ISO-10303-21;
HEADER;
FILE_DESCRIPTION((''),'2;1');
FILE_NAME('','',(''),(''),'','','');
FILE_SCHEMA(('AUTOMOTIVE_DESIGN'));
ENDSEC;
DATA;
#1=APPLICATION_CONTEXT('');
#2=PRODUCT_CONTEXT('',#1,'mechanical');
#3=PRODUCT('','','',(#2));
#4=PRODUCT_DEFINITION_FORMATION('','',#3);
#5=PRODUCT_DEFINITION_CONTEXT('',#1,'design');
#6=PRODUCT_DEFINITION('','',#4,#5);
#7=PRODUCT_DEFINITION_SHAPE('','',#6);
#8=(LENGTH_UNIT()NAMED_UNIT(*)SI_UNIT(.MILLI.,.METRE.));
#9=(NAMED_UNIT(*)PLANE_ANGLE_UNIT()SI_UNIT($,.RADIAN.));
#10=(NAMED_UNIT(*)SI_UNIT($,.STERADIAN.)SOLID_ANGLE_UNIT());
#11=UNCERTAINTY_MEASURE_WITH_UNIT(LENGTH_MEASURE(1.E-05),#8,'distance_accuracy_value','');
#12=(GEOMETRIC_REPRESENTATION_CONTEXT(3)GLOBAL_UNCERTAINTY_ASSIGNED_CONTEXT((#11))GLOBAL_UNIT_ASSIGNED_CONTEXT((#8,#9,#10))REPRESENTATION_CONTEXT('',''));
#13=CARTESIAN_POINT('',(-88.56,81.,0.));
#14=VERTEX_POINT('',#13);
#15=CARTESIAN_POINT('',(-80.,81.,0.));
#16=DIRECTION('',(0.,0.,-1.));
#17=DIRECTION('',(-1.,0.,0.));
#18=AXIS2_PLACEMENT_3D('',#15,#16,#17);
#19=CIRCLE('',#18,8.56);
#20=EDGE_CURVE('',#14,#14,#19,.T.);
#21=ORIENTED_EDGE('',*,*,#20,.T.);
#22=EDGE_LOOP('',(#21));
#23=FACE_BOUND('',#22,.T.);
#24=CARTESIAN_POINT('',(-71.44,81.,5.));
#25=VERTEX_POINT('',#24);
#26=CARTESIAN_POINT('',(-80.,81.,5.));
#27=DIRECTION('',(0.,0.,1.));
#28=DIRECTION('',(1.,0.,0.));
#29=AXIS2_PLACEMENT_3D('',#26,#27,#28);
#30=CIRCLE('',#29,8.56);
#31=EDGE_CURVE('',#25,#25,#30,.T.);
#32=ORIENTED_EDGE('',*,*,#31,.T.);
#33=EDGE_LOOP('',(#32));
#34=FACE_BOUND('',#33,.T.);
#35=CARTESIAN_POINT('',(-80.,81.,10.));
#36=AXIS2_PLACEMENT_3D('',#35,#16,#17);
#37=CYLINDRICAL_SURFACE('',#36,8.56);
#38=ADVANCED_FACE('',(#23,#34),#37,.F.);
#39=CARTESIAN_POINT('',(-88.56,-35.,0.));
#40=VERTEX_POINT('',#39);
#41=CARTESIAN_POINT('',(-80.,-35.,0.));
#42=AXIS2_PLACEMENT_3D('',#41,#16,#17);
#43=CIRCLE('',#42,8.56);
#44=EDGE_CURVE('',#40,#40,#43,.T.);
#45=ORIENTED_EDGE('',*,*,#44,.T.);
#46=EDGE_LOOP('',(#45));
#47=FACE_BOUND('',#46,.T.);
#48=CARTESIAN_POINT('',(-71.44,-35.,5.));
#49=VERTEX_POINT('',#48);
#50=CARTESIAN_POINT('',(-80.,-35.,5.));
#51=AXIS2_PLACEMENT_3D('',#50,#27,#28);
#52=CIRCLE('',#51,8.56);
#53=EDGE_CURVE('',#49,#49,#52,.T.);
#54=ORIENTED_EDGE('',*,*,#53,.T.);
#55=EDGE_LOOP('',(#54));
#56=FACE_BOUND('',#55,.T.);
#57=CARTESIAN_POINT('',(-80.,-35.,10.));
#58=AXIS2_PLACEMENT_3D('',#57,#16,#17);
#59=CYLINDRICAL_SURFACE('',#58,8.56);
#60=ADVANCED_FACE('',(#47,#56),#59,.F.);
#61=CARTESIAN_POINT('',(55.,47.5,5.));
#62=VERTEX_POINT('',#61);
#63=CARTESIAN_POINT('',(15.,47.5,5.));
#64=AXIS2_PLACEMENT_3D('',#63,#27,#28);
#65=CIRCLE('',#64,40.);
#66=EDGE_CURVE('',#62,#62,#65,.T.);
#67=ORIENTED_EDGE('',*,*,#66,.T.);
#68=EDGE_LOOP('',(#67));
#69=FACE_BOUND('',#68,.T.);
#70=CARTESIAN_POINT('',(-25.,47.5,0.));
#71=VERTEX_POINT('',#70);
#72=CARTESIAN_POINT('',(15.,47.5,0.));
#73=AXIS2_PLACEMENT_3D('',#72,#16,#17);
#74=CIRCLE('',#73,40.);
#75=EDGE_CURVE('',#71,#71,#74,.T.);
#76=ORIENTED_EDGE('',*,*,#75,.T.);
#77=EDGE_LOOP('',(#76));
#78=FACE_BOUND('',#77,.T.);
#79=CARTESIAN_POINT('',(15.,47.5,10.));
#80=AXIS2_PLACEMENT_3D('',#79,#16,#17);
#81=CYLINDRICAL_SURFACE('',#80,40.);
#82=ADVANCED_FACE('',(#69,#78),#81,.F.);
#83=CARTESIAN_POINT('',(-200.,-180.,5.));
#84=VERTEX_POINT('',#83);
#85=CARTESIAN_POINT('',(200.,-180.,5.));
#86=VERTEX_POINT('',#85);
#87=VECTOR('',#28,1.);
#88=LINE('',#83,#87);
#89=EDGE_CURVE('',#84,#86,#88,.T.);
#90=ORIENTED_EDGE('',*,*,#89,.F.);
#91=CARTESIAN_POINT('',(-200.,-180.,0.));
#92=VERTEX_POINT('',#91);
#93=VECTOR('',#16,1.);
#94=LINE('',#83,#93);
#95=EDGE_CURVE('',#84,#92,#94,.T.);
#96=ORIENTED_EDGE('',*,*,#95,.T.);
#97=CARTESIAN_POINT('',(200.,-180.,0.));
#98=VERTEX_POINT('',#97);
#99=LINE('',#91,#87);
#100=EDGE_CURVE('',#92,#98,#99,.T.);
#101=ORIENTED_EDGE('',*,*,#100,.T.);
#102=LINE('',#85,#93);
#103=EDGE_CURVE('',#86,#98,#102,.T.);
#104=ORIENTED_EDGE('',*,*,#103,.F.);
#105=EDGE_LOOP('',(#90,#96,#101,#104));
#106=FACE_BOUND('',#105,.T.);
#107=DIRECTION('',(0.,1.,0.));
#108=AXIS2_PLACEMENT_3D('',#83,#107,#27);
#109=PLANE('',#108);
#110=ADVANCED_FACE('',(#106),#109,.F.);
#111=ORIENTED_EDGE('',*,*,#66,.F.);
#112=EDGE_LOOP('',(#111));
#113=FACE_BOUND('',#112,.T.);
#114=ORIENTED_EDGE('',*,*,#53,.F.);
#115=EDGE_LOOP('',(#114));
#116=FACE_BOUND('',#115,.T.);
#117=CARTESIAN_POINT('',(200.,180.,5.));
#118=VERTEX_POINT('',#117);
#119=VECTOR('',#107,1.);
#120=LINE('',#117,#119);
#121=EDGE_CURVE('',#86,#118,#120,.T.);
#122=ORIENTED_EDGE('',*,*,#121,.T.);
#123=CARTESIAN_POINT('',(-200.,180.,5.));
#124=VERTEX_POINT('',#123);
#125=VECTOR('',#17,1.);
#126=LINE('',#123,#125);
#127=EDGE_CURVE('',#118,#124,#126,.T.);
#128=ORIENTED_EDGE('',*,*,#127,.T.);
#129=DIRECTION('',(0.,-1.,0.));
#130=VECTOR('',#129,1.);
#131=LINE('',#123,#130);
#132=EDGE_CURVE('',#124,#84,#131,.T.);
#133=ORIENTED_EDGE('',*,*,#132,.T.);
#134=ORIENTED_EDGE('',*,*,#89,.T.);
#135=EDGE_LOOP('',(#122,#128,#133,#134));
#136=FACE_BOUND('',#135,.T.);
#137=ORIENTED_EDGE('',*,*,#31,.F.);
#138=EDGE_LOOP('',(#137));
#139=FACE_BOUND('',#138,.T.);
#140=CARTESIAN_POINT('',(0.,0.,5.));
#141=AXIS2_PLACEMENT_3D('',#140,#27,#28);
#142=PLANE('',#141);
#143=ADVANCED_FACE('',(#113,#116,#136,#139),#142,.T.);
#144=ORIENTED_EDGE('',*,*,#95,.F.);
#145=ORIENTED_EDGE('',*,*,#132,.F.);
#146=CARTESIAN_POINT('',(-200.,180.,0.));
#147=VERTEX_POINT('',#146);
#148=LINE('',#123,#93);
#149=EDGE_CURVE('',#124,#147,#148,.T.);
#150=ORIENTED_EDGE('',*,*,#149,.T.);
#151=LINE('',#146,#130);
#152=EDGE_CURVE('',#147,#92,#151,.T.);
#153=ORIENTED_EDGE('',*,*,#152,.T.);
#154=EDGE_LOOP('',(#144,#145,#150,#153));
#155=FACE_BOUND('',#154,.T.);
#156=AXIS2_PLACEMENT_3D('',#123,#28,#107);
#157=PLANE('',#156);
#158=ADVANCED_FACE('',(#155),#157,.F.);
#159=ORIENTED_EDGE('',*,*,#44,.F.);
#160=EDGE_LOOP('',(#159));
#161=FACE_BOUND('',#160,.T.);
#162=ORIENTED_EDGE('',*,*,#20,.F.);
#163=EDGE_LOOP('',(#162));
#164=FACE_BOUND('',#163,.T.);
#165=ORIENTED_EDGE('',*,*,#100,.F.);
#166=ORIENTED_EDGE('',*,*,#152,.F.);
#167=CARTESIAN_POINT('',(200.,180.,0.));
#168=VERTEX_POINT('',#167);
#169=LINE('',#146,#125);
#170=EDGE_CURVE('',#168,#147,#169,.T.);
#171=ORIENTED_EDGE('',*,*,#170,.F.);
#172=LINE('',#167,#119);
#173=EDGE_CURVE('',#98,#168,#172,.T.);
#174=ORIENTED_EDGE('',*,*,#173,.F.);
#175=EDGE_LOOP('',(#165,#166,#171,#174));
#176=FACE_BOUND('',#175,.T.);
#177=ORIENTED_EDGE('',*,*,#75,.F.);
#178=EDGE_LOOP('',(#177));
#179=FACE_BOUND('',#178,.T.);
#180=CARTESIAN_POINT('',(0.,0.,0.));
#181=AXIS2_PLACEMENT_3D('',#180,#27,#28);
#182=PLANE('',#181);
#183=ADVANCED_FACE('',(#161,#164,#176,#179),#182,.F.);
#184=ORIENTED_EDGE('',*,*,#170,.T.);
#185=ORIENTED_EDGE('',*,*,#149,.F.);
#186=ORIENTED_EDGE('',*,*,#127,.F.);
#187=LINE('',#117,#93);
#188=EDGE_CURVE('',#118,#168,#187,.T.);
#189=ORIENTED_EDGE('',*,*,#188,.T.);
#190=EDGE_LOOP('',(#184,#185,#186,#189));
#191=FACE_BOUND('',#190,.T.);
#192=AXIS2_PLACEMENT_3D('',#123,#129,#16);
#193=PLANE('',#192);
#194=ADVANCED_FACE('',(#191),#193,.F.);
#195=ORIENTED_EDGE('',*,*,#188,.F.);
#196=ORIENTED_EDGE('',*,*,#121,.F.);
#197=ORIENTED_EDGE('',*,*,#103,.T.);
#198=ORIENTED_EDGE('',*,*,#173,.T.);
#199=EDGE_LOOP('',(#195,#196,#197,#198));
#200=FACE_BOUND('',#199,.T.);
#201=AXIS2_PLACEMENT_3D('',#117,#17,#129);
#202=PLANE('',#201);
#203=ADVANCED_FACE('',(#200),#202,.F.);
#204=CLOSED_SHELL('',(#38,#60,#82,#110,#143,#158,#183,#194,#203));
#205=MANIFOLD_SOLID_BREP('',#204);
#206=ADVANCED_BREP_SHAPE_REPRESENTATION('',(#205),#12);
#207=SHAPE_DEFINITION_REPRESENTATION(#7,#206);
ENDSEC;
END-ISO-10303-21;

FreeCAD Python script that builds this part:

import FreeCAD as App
import Part
import Sketcher

doc = App.newDocument("Part")
params = doc.addObject("Spreadsheet::Sheet", "Params")
for row, (alias, value) in enumerate([
    ("sketch1_width", "400 mm"),
    ("sketch1_height", "360 mm"),
    ("pad1_length", "5 mm"),
    ("sketch2_diameter", "17.12 mm"),
    ("pocket1_length", "10 mm"),
    ("sketch3_diameter", "80 mm"),
    ("pocket2_length", "10 mm"),
], start=1):
    params.set(f"A{row}", alias)
    params.set(f"B{row}", "=" + value)
    params.setAlias(f"B{row}", alias)

body = doc.addObject("PartDesign::Body", "Body")

# Sketch on XY plane
sketch1 = body.newObject("Sketcher::SketchObject", "Sketch")
sketch1.AttachmentSupport = (doc.getObject("XY_Plane"), [""])
sketch1.MapMode = "FlatFace"
sketch1.addGeometry([
    Part.LineSegment(App.Vector(-200, 180, 0), App.Vector(-200, -180, 0)),
    Part.LineSegment(App.Vector(-200, -180, 0), App.Vector(200, -180, 0)),
    Part.LineSegment(App.Vector(200, -180, 0), App.Vector(200, 180, 0)),
    Part.LineSegment(App.Vector(200, 180, 0), App.Vector(-200, 180, 0)),
], False)
sketch1.addConstraint([
    Sketcher.Constraint("Coincident", 0, 2, 1, 1),
    Sketcher.Constraint("Coincident", 1, 2, 2, 1),
    Sketcher.Constraint("Coincident", 2, 2, 3, 1),
    Sketcher.Constraint("Coincident", 3, 2, 0, 1),
    Sketcher.Constraint("Vertical", 0),
    Sketcher.Constraint("Horizontal", 1),
    Sketcher.Constraint("Vertical", 2),
    Sketcher.Constraint("Horizontal", 3),
    Sketcher.Constraint("Symmetric", 0, 2, 2, 2, -1, 1),
    Sketcher.Constraint("DistanceX", 1, 1, 1, 2, 400.0),
    Sketcher.Constraint("DistanceY", 0, 2, 0, 1, 360.0),
])
sketch1.setExpression("Constraints[9]", "Params.sketch1_width")
sketch1.setExpression("Constraints[10]", "Params.sketch1_height")
pad1 = body.newObject("PartDesign::Pad", "Pad")
pad1.Profile = sketch1
pad1.setExpression("Length", "Params.pad1_length")

# Sketch on XY plane
sketch2 = body.newObject("Sketcher::SketchObject", "Sketch001")
sketch2.AttachmentSupport = (doc.getObject("XY_Plane"), [""])
sketch2.MapMode = "FlatFace"
sketch2.addGeometry([
    Part.Circle(App.Vector(-80, 81, 0), App.Vector(0, 0, 1), 9),
    Part.Circle(App.Vector(-80, -35, 0), App.Vector(0, 0, 1), 9),
], False)
sketch2.addConstraint([
    Sketcher.Constraint("Equal", 0, 1),
    Sketcher.Constraint("Vertical", 0, 3, 1, 3),
    Sketcher.Constraint("Diameter", 0, 17.12),
    Sketcher.Constraint("DistanceX", 0, 3, -1, 1, 80.0),
    Sketcher.Constraint("DistanceY", -1, 1, 0, 3, 81.0),
    Sketcher.Constraint("DistanceY", 1, 3, -1, 1, 35.0),
])
sketch2.setExpression("Constraints[2]", "Params.sketch2_diameter")
pocket1 = body.newObject("PartDesign::Pocket", "Pocket")
pocket1.Profile = sketch2
pocket1.setExpression("Length", "Params.pocket1_length")
pocket1.Reversed = True

# Sketch on XY plane
sketch3 = body.newObject("Sketcher::SketchObject", "Sketch002")
sketch3.AttachmentSupport = (doc.getObject("XY_Plane"), [""])
sketch3.MapMode = "FlatFace"
sketch3.addGeometry(Part.Circle(App.Vector(15, 48, 0), App.Vector(0, 0, 1), 40), False)
sketch3.addConstraint([
    Sketcher.Constraint("Diameter", 0, 80.0),
    Sketcher.Constraint("DistanceX", -1, 1, 0, 3, 15.0),
    Sketcher.Constraint("DistanceY", -1, 1, 0, 3, 47.5),
])
sketch3.setExpression("Constraints[0]", "Params.sketch3_diameter")
pocket2 = body.newObject("PartDesign::Pocket", "Pocket001")
pocket2.Profile = sketch3
pocket2.setExpression("Length", "Params.pocket2_length")
pocket2.Reversed = True

doc.recompute()
